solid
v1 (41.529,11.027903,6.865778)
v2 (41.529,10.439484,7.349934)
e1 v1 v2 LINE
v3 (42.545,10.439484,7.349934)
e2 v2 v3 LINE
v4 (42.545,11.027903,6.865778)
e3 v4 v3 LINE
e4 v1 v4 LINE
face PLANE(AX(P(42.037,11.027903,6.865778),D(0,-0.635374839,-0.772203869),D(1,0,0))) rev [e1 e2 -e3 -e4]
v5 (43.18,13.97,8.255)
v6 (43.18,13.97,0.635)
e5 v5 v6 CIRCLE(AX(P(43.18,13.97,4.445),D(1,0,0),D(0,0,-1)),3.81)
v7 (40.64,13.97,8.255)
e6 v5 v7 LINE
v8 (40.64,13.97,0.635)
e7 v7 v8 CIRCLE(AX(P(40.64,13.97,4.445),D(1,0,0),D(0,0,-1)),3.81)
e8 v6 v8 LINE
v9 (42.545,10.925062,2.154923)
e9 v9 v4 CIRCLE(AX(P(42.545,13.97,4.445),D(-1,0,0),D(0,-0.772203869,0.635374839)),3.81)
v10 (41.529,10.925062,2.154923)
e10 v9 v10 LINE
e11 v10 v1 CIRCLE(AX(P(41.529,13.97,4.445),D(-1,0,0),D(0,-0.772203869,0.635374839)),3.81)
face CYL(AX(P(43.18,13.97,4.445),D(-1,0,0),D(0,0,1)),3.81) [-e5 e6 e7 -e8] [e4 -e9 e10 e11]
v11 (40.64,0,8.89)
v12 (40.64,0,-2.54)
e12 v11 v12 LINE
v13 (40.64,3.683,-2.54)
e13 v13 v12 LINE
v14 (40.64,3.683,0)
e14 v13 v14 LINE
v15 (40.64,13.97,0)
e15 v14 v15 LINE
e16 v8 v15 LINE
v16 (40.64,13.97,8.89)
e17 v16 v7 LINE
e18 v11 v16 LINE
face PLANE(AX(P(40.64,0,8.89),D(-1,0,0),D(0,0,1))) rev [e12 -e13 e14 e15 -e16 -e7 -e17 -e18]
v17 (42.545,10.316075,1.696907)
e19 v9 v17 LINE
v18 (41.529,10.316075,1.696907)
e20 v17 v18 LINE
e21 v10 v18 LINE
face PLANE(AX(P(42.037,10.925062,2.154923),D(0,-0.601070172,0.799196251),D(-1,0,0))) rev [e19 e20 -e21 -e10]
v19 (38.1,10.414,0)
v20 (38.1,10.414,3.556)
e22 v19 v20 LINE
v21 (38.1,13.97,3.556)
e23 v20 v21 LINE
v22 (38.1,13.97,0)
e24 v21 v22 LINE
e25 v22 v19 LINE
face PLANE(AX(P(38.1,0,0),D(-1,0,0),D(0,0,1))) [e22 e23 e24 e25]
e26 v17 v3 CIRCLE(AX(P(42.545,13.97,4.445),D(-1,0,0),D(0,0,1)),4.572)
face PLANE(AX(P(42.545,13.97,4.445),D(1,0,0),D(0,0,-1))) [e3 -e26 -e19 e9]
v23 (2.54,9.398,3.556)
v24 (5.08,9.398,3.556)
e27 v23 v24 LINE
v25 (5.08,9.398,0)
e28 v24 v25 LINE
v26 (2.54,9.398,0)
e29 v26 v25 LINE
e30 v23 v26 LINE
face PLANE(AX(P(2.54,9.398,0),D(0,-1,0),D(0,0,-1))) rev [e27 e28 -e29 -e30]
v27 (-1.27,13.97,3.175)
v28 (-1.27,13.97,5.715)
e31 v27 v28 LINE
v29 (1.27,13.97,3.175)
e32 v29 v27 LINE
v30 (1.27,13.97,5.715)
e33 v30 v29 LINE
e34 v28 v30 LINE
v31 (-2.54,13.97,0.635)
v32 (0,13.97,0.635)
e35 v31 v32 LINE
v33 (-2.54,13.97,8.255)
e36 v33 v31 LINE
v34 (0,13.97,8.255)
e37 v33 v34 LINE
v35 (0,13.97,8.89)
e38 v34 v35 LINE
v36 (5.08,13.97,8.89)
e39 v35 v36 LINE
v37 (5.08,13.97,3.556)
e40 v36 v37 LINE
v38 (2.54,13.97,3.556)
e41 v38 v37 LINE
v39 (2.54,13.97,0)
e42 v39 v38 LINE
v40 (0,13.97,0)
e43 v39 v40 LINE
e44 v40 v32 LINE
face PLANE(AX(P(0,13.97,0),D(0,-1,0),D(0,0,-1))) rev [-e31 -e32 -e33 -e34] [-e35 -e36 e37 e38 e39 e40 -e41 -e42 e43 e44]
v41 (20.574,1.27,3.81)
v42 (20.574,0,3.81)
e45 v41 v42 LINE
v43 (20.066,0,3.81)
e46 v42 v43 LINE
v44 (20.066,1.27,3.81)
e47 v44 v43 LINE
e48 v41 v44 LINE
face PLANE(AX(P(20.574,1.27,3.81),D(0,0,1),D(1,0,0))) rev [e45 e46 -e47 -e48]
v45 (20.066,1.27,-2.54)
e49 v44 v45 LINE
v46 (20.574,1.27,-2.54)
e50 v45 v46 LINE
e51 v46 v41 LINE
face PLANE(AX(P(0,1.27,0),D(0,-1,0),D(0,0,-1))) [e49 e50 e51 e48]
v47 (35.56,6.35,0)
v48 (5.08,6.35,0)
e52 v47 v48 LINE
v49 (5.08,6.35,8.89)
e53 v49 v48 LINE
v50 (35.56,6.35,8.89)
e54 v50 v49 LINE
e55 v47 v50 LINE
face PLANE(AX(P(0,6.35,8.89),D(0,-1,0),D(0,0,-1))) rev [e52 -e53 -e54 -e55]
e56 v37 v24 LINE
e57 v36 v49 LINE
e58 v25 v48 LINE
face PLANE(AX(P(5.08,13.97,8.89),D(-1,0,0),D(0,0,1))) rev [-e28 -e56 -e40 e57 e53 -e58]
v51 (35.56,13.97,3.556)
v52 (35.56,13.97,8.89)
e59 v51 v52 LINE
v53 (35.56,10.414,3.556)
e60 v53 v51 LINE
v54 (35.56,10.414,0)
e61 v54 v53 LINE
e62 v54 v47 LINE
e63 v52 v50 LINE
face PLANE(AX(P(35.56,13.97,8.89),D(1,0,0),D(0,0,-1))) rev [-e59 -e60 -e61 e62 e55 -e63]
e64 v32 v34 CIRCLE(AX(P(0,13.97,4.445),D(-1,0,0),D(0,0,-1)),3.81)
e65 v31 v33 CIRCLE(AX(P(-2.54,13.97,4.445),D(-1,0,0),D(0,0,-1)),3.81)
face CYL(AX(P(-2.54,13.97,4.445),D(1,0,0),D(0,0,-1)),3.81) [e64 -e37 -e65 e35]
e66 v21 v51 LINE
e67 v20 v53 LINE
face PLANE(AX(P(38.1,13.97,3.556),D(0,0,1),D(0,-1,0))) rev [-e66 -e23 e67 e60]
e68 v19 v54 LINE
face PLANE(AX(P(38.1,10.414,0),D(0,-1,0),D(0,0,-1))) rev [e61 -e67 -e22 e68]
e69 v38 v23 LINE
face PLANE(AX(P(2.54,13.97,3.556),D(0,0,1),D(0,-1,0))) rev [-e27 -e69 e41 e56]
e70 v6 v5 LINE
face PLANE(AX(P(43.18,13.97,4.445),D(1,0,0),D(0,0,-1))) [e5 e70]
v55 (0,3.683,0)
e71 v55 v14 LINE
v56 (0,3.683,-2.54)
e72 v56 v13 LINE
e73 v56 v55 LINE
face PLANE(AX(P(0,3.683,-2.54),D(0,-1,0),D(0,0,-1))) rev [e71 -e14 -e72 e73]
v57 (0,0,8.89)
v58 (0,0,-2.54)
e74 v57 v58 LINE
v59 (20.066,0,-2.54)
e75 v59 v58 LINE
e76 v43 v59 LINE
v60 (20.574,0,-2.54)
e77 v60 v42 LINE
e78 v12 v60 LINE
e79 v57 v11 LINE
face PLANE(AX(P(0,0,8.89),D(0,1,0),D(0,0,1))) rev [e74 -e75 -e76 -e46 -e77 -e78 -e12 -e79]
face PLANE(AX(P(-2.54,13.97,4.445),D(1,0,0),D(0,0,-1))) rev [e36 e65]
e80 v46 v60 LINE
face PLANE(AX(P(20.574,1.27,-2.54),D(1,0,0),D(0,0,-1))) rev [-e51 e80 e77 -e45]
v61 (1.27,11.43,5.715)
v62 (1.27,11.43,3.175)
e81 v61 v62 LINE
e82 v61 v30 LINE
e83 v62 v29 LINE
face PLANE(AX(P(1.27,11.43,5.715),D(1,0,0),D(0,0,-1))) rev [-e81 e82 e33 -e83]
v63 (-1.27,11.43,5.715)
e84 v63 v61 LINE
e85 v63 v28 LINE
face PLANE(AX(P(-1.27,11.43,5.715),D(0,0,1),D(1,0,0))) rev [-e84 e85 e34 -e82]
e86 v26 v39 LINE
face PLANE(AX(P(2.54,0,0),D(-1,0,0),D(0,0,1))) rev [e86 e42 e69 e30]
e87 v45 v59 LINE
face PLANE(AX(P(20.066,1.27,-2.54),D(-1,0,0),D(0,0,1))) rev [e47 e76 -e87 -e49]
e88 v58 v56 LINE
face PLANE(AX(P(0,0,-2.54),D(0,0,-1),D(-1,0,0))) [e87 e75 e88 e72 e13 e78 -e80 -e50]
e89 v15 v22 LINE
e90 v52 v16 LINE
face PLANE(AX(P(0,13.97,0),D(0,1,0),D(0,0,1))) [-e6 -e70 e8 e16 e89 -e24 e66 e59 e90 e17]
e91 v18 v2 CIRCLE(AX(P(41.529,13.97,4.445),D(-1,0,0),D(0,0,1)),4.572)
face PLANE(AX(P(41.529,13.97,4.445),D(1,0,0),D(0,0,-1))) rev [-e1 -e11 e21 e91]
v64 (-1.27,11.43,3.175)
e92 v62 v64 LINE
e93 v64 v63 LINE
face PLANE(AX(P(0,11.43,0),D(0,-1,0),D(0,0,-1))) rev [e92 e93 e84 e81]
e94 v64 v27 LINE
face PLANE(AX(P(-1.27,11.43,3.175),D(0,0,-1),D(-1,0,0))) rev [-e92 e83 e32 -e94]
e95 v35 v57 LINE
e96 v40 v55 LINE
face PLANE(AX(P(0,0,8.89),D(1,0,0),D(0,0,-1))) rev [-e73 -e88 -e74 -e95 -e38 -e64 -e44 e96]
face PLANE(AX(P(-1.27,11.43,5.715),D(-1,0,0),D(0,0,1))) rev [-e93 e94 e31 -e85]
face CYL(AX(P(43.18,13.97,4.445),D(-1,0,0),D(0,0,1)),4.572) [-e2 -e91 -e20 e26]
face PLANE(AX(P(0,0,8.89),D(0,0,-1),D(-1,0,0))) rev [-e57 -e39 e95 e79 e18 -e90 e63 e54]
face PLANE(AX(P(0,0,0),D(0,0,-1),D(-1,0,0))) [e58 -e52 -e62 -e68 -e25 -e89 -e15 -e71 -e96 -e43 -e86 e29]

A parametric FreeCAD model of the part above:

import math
import FreeCAD as App
import Part
import Sketcher
Q = App.Units.Quantity

doc = App.newDocument("Part")
body = doc.addObject("PartDesign::Body", "Body")

# Sketch on XY plane
sketch1 = doc.addObject("Sketcher::SketchObject", "Sketch")
body.addObject(sketch1)
sketch1.AttachmentSupport = (doc.XY_Plane, [""])
sketch1.MapMode = "FlatFace"
sketch1.addGeometry([
    Part.LineSegment(App.Vector(0, 6.35, 0), App.Vector(0, 0, 0)),
    Part.LineSegment(App.Vector(0, 0, 0), App.Vector(40.64, 0, 0)),
    Part.LineSegment(App.Vector(40.64, 0, 0), App.Vector(40.64, 6.35, 0)),
    Part.LineSegment(App.Vector(40.64, 6.35, 0), App.Vector(0, 6.35, 0)),
], False)
sketch1.addConstraint([
    Sketcher.Constraint("Coincident", 0, 2, 1, 1),
    Sketcher.Constraint("Coincident", 1, 2, 2, 1),
    Sketcher.Constraint("Coincident", 2, 2, 3, 1),
    Sketcher.Constraint("Coincident", 3, 2, 0, 1),
    Sketcher.Constraint("Vertical", 0),
    Sketcher.Constraint("Horizontal", 1),
    Sketcher.Constraint("Vertical", 2),
    Sketcher.Constraint("Horizontal", 3),
    Sketcher.Constraint("Coincident", 0, 2, -1, 1),
    Sketcher.Constraint("DistanceX", 1, 1, 1, 2, Q("1.6 in")),
    Sketcher.Constraint("DistanceY", 0, 2, 0, 1, Q("0.25 in")),
])
pad1 = doc.addObject("PartDesign::Pad", "Pad")
body.addObject(pad1)
pad1.Profile = sketch1
pad1.Length = Q("0.35 in")

# Sketch on XZ plane
sketch2 = doc.addObject("Sketcher::SketchObject", "Sketch001")
body.addObject(sketch2)
sketch2.AttachmentSupport = (doc.XZ_Plane, [""])
sketch2.MapMode = "FlatFace"
sketch2.AttachmentOffset = App.Placement(App.Vector(0, 0, -0.25 * 25.4), App.Rotation())
sketch2.addGeometry([
    Part.LineSegment(App.Vector(0, 0, 0), App.Vector(0, 8.89, 0)),
    Part.LineSegment(App.Vector(0, 8.89, 0), App.Vector(5.08, 8.89, 0)),
    Part.LineSegment(App.Vector(5.08, 8.89, 0), App.Vector(5.08, 0, 0)),
    Part.LineSegment(App.Vector(5.08, 0, 0), App.Vector(0, 0, 0)),
], False)
sketch2.addConstraint([
    Sketcher.Constraint("Coincident", 0, 2, 1, 1),
    Sketcher.Constraint("Coincident", 1, 2, 2, 1),
    Sketcher.Constraint("Coincident", 2, 2, 3, 1),
    Sketcher.Constraint("Coincident", 3, 2, 0, 1),
    Sketcher.Constraint("Vertical", 0),
    Sketcher.Constraint("Horizontal", 1),
    Sketcher.Constraint("Vertical", 2),
    Sketcher.Constraint("Horizontal", 3),
    Sketcher.Constraint("Coincident", 3, 2, -1, 1),
    Sketcher.Constraint("DistanceX", 1, 1, 1, 2, Q("0.2 in")),
    Sketcher.Constraint("DistanceY", 0, 1, 0, 2, Q("0.35 in")),
])
pad2 = doc.addObject("PartDesign::Pad", "Pad001")
body.addObject(pad2)
pad2.Profile = sketch2
pad2.Length = Q("0.3 in")
pad2.Reversed = True

# Sketch on XZ plane
sketch3 = doc.addObject("Sketcher::SketchObject", "Sketch002")
body.addObject(sketch3)
sketch3.AttachmentSupport = (doc.XZ_Plane, [""])
sketch3.MapMode = "FlatFace"
sketch3.AttachmentOffset = App.Placement(App.Vector(0, 0, -0.25 * 25.4), App.Rotation())
sketch3.addGeometry([
    Part.LineSegment(App.Vector(35.56, 0, 0), App.Vector(35.56, 8.89, 0)),
    Part.LineSegment(App.Vector(35.56, 8.89, 0), App.Vector(40.64, 8.89, 0)),
    Part.LineSegment(App.Vector(40.64, 8.89, 0), App.Vector(40.64, 0, 0)),
    Part.LineSegment(App.Vector(40.64, 0, 0), App.Vector(35.56, 0, 0)),
], False)
sketch3.addConstraint([
    Sketcher.Constraint("Coincident", 0, 2, 1, 1),
    Sketcher.Constraint("Coincident", 1, 2, 2, 1),
    Sketcher.Constraint("Coincident", 2, 2, 3, 1),
    Sketcher.Constraint("Coincident", 3, 2, 0, 1),
    Sketcher.Constraint("Vertical", 0),
    Sketcher.Constraint("Horizontal", 1),
    Sketcher.Constraint("Vertical", 2),
    Sketcher.Constraint("Horizontal", 3),
    Sketcher.Constraint("PointOnObject", 2, 2, -1),
    Sketcher.Constraint("DistanceX", 1, 1, 1, 2, Q("0.2 in")),
    Sketcher.Constraint("DistanceY", 0, 1, 0, 2, Q("0.35 in")),
    Sketcher.Constraint("DistanceX", -1, 1, 0, 2, Q("1.4 in")),
])
pad3 = doc.addObject("PartDesign::Pad", "Pad002")
body.addObject(pad3)
pad3.Profile = sketch3
pad3.Length = Q("0.3 in")
pad3.Reversed = True

# Sketch on YZ plane
sketch4 = doc.addObject("Sketcher::SketchObject", "Sketch003")
body.addObject(sketch4)
sketch4.AttachmentSupport = (doc.YZ_Plane, [""])
sketch4.MapMode = "FlatFace"
sketch4.AttachmentOffset = App.Placement(App.Vector(0, 0, 0.2 * 25.4), App.Rotation())
sketch4.addGeometry([
    Part.LineSegment(App.Vector(13.97, 3.556, 0), App.Vector(9.398, 3.556, 0)),
    Part.LineSegment(App.Vector(9.398, 3.556, 0), App.Vector(9.398, 0, 0)),
    Part.LineSegment(App.Vector(9.398, 0, 0), App.Vector(13.97, 0, 0)),
    Part.LineSegment(App.Vector(13.97, 0, 0), App.Vector(13.97, 3.556, 0)),
], False)
sketch4.addConstraint([
    Sketcher.Constraint("Coincident", 0, 2, 1, 1),
    Sketcher.Constraint("Coincident", 1, 2, 2, 1),
    Sketcher.Constraint("Coincident", 2, 2, 3, 1),
    Sketcher.Constraint("Coincident", 3, 2, 0, 1),
    Sketcher.Constraint("Horizontal", 0),
    Sketcher.Constraint("Vertical", 1),
    Sketcher.Constraint("Horizontal", 2),
    Sketcher.Constraint("Vertical", 3),
    Sketcher.Constraint("PointOnObject", 1, 2, -1),
    Sketcher.Constraint("DistanceX", 0, 2, 0, 1, Q("0.18 in")),
    Sketcher.Constraint("DistanceY", 1, 2, 1, 1, Q("0.14 in")),
    Sketcher.Constraint("DistanceX", -1, 1, 0, 2, Q("0.37 in")),
])
pocket1 = doc.addObject("PartDesign::Pocket", "Pocket")
body.addObject(pocket1)
pocket1.Profile = sketch4
pocket1.Length = Q("0.1 in")

# Sketch on YZ plane
sketch5 = doc.addObject("Sketcher::SketchObject", "Sketch004")
body.addObject(sketch5)
sketch5.AttachmentSupport = (doc.YZ_Plane, [""])
sketch5.MapMode = "FlatFace"
sketch5.addGeometry([
    Part.LineSegment(App.Vector(13.97, 8.255, 0), App.Vector(13.97, 0.635, 0)),
    Part.ArcOfCircle(Part.Circle(App.Vector(13.97, 4.445, 0), App.Vector(0, 0, 1), 3.81), math.radians(90), math.radians(270)),
], False)
sketch5.addConstraint([
    Sketcher.Constraint("Coincident", 0, 1, 1, 1),
    Sketcher.Constraint("Coincident", 1, 2, 0, 2),
    Sketcher.Constraint("Vertical", 0),
    Sketcher.Constraint("Vertical", 1, 3, 0, 1),
    Sketcher.Constraint("Radius", 1, Q("0.15 in")),
    Sketcher.Constraint("DistanceX", -1, 1, 1, 3, Q("0.55 in")),
    Sketcher.Constraint("DistanceY", -1, 1, 1, 3, Q("0.175 in")),
])
pad4 = doc.addObject("PartDesign::Pad", "Pad003")
body.addObject(pad4)
pad4.Profile = sketch5
pad4.Length = Q("0.1 in")
pad4.Reversed = True

# Sketch on XY plane
sketch6 = doc.addObject("Sketcher::SketchObject", "Sketch005")
body.addObject(sketch6)
sketch6.AttachmentSupport = (doc.XY_Plane, [""])
sketch6.MapMode = "FlatFace"
sketch6.addGeometry([
    Part.LineSegment(App.Vector(40.64, 3.683, 0), App.Vector(40.64, 0, 0)),
    Part.LineSegment(App.Vector(40.64, 0, 0), App.Vector(0, 0, 0)),
    Part.LineSegment(App.Vector(0, 0, 0), App.Vector(0, 3.683, 0)),
    Part.LineSegment(App.Vector(0, 3.683, 0), App.Vector(40.64, 3.683, 0)),
], False)
sketch6.addConstraint([
    Sketcher.Constraint("Coincident", 0, 2, 1, 1),
    Sketcher.Constraint("Coincident", 1, 2, 2, 1),
    Sketcher.Constraint("Coincident", 2, 2, 3, 1),
    Sketcher.Constraint("Coincident", 3, 2, 0, 1),
    Sketcher.Constraint("Vertical", 0),
    Sketcher.Constraint("Horizontal", 1),
    Sketcher.Constraint("Vertical", 2),
    Sketcher.Constraint("Horizontal", 3),
    Sketcher.Constraint("Coincident", 1, 2, -1, 1),
    Sketcher.Constraint("DistanceX", 1, 2, 1, 1, Q("1.6 in")),
    Sketcher.Constraint("DistanceY", 0, 2, 0, 1, Q("0.145 in")),
])
pad5 = doc.addObject("PartDesign::Pad", "Pad004")
body.addObject(pad5)
pad5.Profile = sketch6
pad5.Length = Q("0.1 in")
pad5.Reversed = True

# Sketch on YZ plane
sketch7 = doc.addObject("Sketcher::SketchObject", "Sketch006")
body.addObject(sketch7)
sketch7.AttachmentSupport = (doc.YZ_Plane, [""])
sketch7.MapMode = "FlatFace"
sketch7.AttachmentOffset = App.Placement(App.Vector(0, 0, 1.4 * 25.4), App.Rotation())
sketch7.addGeometry([
    Part.LineSegment(App.Vector(13.97, 0, 0), App.Vector(10.414, 0, 0)),
    Part.LineSegment(App.Vector(10.414, 0, 0), App.Vector(10.414, 3.556, 0)),
    Part.LineSegment(App.Vector(10.414, 3.556, 0), App.Vector(13.97, 3.556, 0)),
    Part.LineSegment(App.Vector(13.97, 3.556, 0), App.Vector(13.97, 0, 0)),
], False)
sketch7.addConstraint([
    Sketcher.Constraint("Coincident", 0, 2, 1, 1),
    Sketcher.Constraint("Coincident", 1, 2, 2, 1),
    Sketcher.Constraint("Coincident", 2, 2, 3, 1),
    Sketcher.Constraint("Coincident", 3, 2, 0, 1),
    Sketcher.Constraint("Horizontal", 0),
    Sketcher.Constraint("Vertical", 1),
    Sketcher.Constraint("Horizontal", 2),
    Sketcher.Constraint("Vertical", 3),
    Sketcher.Constraint("PointOnObject", 0, 2, -1),
    Sketcher.Constraint("Equal", 2, 1),
    Sketcher.Constraint("DistanceX", 0, 2, 0, 1, Q("0.14 in")),
    Sketcher.Constraint("DistanceX", -1, 1, 0, 2, Q("0.41 in")),
])
pocket2 = doc.addObject("PartDesign::Pocket", "Pocket001")
body.addObject(pocket2)
pocket2.Profile = sketch7
pocket2.Length = Q("0.1 in")
pocket2.Reversed = True

# Sketch on YZ plane
sketch8 = doc.addObject("Sketcher::SketchObject", "Sketch007")
body.addObject(sketch8)
sketch8.AttachmentSupport = (doc.YZ_Plane, [""])
sketch8.MapMode = "FlatFace"
sketch8.AttachmentOffset = App.Placement(App.Vector(0, 0, 1.7 * 25.4), App.Rotation())
sketch8.addGeometry([
    Part.LineSegment(App.Vector(13.97, 0.635, 0), App.Vector(13.97, 8.255, 0)),
    Part.ArcOfCircle(Part.Circle(App.Vector(13.97, 4.445, 0), App.Vector(0, 0, 1), 3.81), math.radians(90), math.radians(270)),
], False)
sketch8.addConstraint([
    Sketcher.Constraint("Coincident", 0, 1, 1, 2),
    Sketcher.Constraint("Coincident", 1, 1, 0, 2),
    Sketcher.Constraint("Vertical", 0),
    Sketcher.Constraint("Vertical", 1, 3, 0, 1),
    Sketcher.Constraint("Radius", 1, Q("0.15 in")),
    Sketcher.Constraint("DistanceX", -1, 1, 1, 3, Q("0.55 in")),
    Sketcher.Constraint("DistanceY", -1, 1, 1, 3, Q("0.175 in")),
])
pad6 = doc.addObject("PartDesign::Pad", "Pad005")
body.addObject(pad6)
pad6.Profile = sketch8
pad6.Length = Q("0.1 in")
pad6.Reversed = True

# Sketch on an angled plane
sketch9 = doc.addObject("Sketcher::SketchObject", "Sketch008")
body.addObject(sketch9)
sketch9.Placement = App.Placement(App.Vector(43.18, 13.97, 4.445), App.Rotation(App.Vector(0, -0.772203869, 0.635374839), App.Vector(1.000000001, 0, 0), App.Vector(0, 0.635374839, 0.772203869), "ZXY"))
sketch9.addGeometry([
    Part.LineSegment(App.Vector(3.81, -0.635, 0), App.Vector(3.81, -1.651, 0)),
    Part.LineSegment(App.Vector(3.81, -1.651, 0), App.Vector(4.572, -1.651, 0)),
    Part.LineSegment(App.Vector(4.572, -1.651, 0), App.Vector(4.572, -0.635, 0)),
    Part.LineSegment(App.Vector(4.572, -0.635, 0), App.Vector(3.81, -0.635, 0)),
], False)
sketch9.addConstraint([
    Sketcher.Constraint("Coincident", 0, 2, 1, 1),
    Sketcher.Constraint("Coincident", 1, 2, 2, 1),
    Sketcher.Constraint("Coincident", 2, 2, 3, 1),
    Sketcher.Constraint("Coincident", 3, 2, 0, 1),
    Sketcher.Constraint("Vertical", 0),
    Sketcher.Constraint("Horizontal", 1),
    Sketcher.Constraint("Vertical", 2),
    Sketcher.Constraint("Horizontal", 3),
    Sketcher.Constraint("DistanceX", 1, 1, 1, 2, Q("0.03 in")),
    Sketcher.Constraint("DistanceY", 0, 2, 0, 1, Q("0.04 in")),
    Sketcher.Constraint("DistanceX", -1, 1, 0, 2, Q("0.15 in")),
    Sketcher.Constraint("DistanceY", 0, 2, -1, 1, Q("0.065 in")),
])
revolution = doc.addObject("PartDesign::Revolution", "Revolution")
body.addObject(revolution)
revolution.Profile = sketch9
revolution.ReferenceAxis = (sketch9, ["V_Axis"])
revolution.Angle = 76.394373

# Sketch on XZ plane
sketch10 = doc.addObject("Sketcher::SketchObject", "Sketch009")
body.addObject(sketch10)
sketch10.AttachmentSupport = (doc.XZ_Plane, [""])
sketch10.MapMode = "FlatFace"
sketch10.addGeometry([
    Part.LineSegment(App.Vector(20.066, 3.81, 0), App.Vector(20.066, -2.54, 0)),
    Part.LineSegment(App.Vector(20.066, -2.54, 0), App.Vector(20.574, -2.54, 0)),
    Part.LineSegment(App.Vector(20.574, -2.54, 0), App.Vector(20.574, 3.81, 0)),
    Part.LineSegment(App.Vector(20.574, 3.81, 0), App.Vector(20.066, 3.81, 0)),
], False)
sketch10.addConstraint([
    Sketcher.Constraint("Coincident", 0, 2, 1, 1),
    Sketcher.Constraint("Coincident", 1, 2, 2, 1),
    Sketcher.Constraint("Coincident", 2, 2, 3, 1),
    Sketcher.Constraint("Coincident", 3, 2, 0, 1),
    Sketcher.Constraint("Vertical", 0),
    Sketcher.Constraint("Horizontal", 1),
    Sketcher.Constraint("Vertical", 2),
    Sketcher.Constraint("Horizontal", 3),
    Sketcher.Constraint("DistanceX", 1, 1, 1, 2, Q("0.02 in")),
    Sketcher.Constraint("DistanceY", 0, 2, 0, 1, Q("0.25 in")),
    Sketcher.Constraint("DistanceY", 0, 2, -1, 1, Q("0.1 in")),
    Sketcher.Constraint("DistanceX", -1, 1, 0, 2, Q("0.79 in")),
])
pocket3 = doc.addObject("PartDesign::Pocket", "Pocket002")
body.addObject(pocket3)
pocket3.Profile = sketch10
pocket3.Length = Q("0.05 in")

# Sketch on XZ plane
sketch11 = doc.addObject("Sketcher::SketchObject", "Sketch010")
body.addObject(sketch11)
sketch11.AttachmentSupport = (doc.XZ_Plane, [""])
sketch11.MapMode = "FlatFace"
sketch11.AttachmentOffset = App.Placement(App.Vector(0, 0, -0.55 * 25.4), App.Rotation())
sketch11.addGeometry([
    Part.LineSegment(App.Vector(-1.27, 3.175, 0), App.Vector(-1.27, 5.715, 0)),
    Part.LineSegment(App.Vector(-1.27, 5.715, 0), App.Vector(1.27, 5.715, 0)),
    Part.LineSegment(App.Vector(1.27, 5.715, 0), App.Vector(1.27, 3.175, 0)),
    Part.LineSegment(App.Vector(1.27, 3.175, 0), App.Vector(-1.27, 3.175, 0)),
], False)
sketch11.addConstraint([
    Sketcher.Constraint("Coincident", 0, 2, 1, 1),
    Sketcher.Constraint("Coincident", 1, 2, 2, 1),
    Sketcher.Constraint("Coincident", 2, 2, 3, 1),
    Sketcher.Constraint("Coincident", 3, 2, 0, 1),
    Sketcher.Constraint("Vertical", 0),
    Sketcher.Constraint("Horizontal", 1),
    Sketcher.Constraint("Vertical", 2),
    Sketcher.Constraint("Horizontal", 3),
    Sketcher.Constraint("Equal", 3, 0),
    Sketcher.Constraint("DistanceX", 1, 1, 1, 2, Q("0.1 in")),
    Sketcher.Constraint("DistanceX", 0, 2, -1, 1, Q("0.05 in")),
    Sketcher.Constraint("DistanceY", -1, 1, 0, 2, Q("0.225 in")),
])
pocket4 = doc.addObject("PartDesign::Pocket", "Pocket003")
body.addObject(pocket4)
pocket4.Profile = sketch11
pocket4.Length = Q("0.1 in")
pocket4.Reversed = True

doc.recompute()
